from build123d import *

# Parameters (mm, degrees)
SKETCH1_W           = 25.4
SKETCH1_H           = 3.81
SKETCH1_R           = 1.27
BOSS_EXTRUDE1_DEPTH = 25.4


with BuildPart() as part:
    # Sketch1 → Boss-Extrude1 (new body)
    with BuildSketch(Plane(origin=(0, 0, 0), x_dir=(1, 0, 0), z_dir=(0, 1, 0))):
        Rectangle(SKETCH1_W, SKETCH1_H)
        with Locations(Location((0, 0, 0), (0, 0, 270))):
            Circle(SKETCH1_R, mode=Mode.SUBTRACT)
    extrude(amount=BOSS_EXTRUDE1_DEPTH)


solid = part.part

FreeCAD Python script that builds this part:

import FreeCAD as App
import Part
import Sketcher

V = App.Vector
Q = App.Units.Quantity

doc = App.newDocument("Part")
body = doc.addObject("PartDesign::Body", "Body")

sketch1 = body.newObject("Sketcher::SketchObject", "Sketch")
sketch1.AttachmentSupport = (doc.getObject("XZ_Plane"), [""])
sketch1.MapMode = "FlatFace"
sketch1.addGeometry([
    Part.LineSegment(V(-12.7, -1.9, 0), V(-12.7, 1.9, 0)),
    Part.LineSegment(V(-12.7, 1.9, 0), V(12.7, 1.9, 0)),
    Part.LineSegment(V(12.7, 1.9, 0), V(12.7, -1.9, 0)),
    Part.LineSegment(V(12.7, -1.9, 0), V(-12.7, -1.9, 0)),
    Part.Circle(V(0, 0, 0), V(0, 0, 1), 1.3),
], False)
sketch1.addConstraint([
    Sketcher.Constraint("Coincident", 0, 2, 1, 1),
    Sketcher.Constraint("Coincident", 1, 2, 2, 1),
    Sketcher.Constraint("Coincident", 2, 2, 3, 1),
    Sketcher.Constraint("Coincident", 3, 2, 0, 1),
    Sketcher.Constraint("Vertical", 0),
    Sketcher.Constraint("Horizontal", 1),
    Sketcher.Constraint("Vertical", 2),
    Sketcher.Constraint("Horizontal", 3),
    Sketcher.Constraint("Coincident", 4, 3, -1, 1),
    Sketcher.Constraint("Symmetric", 0, 2, 2, 2, -1, 1),
    Sketcher.Constraint("Diameter", 4, Q("0.1 in")),
    Sketcher.Constraint("DistanceX", 1, 1, 1, 2, Q("1 in")),
    Sketcher.Constraint("DistanceY", 0, 1, 0, 2, Q("0.15 in")),
])
pad1 = body.newObject("PartDesign::Pad", "Pad")
pad1.Profile = sketch1
pad1.Length = Q("1 in")
pad1.Reversed = True

doc.recompute()
